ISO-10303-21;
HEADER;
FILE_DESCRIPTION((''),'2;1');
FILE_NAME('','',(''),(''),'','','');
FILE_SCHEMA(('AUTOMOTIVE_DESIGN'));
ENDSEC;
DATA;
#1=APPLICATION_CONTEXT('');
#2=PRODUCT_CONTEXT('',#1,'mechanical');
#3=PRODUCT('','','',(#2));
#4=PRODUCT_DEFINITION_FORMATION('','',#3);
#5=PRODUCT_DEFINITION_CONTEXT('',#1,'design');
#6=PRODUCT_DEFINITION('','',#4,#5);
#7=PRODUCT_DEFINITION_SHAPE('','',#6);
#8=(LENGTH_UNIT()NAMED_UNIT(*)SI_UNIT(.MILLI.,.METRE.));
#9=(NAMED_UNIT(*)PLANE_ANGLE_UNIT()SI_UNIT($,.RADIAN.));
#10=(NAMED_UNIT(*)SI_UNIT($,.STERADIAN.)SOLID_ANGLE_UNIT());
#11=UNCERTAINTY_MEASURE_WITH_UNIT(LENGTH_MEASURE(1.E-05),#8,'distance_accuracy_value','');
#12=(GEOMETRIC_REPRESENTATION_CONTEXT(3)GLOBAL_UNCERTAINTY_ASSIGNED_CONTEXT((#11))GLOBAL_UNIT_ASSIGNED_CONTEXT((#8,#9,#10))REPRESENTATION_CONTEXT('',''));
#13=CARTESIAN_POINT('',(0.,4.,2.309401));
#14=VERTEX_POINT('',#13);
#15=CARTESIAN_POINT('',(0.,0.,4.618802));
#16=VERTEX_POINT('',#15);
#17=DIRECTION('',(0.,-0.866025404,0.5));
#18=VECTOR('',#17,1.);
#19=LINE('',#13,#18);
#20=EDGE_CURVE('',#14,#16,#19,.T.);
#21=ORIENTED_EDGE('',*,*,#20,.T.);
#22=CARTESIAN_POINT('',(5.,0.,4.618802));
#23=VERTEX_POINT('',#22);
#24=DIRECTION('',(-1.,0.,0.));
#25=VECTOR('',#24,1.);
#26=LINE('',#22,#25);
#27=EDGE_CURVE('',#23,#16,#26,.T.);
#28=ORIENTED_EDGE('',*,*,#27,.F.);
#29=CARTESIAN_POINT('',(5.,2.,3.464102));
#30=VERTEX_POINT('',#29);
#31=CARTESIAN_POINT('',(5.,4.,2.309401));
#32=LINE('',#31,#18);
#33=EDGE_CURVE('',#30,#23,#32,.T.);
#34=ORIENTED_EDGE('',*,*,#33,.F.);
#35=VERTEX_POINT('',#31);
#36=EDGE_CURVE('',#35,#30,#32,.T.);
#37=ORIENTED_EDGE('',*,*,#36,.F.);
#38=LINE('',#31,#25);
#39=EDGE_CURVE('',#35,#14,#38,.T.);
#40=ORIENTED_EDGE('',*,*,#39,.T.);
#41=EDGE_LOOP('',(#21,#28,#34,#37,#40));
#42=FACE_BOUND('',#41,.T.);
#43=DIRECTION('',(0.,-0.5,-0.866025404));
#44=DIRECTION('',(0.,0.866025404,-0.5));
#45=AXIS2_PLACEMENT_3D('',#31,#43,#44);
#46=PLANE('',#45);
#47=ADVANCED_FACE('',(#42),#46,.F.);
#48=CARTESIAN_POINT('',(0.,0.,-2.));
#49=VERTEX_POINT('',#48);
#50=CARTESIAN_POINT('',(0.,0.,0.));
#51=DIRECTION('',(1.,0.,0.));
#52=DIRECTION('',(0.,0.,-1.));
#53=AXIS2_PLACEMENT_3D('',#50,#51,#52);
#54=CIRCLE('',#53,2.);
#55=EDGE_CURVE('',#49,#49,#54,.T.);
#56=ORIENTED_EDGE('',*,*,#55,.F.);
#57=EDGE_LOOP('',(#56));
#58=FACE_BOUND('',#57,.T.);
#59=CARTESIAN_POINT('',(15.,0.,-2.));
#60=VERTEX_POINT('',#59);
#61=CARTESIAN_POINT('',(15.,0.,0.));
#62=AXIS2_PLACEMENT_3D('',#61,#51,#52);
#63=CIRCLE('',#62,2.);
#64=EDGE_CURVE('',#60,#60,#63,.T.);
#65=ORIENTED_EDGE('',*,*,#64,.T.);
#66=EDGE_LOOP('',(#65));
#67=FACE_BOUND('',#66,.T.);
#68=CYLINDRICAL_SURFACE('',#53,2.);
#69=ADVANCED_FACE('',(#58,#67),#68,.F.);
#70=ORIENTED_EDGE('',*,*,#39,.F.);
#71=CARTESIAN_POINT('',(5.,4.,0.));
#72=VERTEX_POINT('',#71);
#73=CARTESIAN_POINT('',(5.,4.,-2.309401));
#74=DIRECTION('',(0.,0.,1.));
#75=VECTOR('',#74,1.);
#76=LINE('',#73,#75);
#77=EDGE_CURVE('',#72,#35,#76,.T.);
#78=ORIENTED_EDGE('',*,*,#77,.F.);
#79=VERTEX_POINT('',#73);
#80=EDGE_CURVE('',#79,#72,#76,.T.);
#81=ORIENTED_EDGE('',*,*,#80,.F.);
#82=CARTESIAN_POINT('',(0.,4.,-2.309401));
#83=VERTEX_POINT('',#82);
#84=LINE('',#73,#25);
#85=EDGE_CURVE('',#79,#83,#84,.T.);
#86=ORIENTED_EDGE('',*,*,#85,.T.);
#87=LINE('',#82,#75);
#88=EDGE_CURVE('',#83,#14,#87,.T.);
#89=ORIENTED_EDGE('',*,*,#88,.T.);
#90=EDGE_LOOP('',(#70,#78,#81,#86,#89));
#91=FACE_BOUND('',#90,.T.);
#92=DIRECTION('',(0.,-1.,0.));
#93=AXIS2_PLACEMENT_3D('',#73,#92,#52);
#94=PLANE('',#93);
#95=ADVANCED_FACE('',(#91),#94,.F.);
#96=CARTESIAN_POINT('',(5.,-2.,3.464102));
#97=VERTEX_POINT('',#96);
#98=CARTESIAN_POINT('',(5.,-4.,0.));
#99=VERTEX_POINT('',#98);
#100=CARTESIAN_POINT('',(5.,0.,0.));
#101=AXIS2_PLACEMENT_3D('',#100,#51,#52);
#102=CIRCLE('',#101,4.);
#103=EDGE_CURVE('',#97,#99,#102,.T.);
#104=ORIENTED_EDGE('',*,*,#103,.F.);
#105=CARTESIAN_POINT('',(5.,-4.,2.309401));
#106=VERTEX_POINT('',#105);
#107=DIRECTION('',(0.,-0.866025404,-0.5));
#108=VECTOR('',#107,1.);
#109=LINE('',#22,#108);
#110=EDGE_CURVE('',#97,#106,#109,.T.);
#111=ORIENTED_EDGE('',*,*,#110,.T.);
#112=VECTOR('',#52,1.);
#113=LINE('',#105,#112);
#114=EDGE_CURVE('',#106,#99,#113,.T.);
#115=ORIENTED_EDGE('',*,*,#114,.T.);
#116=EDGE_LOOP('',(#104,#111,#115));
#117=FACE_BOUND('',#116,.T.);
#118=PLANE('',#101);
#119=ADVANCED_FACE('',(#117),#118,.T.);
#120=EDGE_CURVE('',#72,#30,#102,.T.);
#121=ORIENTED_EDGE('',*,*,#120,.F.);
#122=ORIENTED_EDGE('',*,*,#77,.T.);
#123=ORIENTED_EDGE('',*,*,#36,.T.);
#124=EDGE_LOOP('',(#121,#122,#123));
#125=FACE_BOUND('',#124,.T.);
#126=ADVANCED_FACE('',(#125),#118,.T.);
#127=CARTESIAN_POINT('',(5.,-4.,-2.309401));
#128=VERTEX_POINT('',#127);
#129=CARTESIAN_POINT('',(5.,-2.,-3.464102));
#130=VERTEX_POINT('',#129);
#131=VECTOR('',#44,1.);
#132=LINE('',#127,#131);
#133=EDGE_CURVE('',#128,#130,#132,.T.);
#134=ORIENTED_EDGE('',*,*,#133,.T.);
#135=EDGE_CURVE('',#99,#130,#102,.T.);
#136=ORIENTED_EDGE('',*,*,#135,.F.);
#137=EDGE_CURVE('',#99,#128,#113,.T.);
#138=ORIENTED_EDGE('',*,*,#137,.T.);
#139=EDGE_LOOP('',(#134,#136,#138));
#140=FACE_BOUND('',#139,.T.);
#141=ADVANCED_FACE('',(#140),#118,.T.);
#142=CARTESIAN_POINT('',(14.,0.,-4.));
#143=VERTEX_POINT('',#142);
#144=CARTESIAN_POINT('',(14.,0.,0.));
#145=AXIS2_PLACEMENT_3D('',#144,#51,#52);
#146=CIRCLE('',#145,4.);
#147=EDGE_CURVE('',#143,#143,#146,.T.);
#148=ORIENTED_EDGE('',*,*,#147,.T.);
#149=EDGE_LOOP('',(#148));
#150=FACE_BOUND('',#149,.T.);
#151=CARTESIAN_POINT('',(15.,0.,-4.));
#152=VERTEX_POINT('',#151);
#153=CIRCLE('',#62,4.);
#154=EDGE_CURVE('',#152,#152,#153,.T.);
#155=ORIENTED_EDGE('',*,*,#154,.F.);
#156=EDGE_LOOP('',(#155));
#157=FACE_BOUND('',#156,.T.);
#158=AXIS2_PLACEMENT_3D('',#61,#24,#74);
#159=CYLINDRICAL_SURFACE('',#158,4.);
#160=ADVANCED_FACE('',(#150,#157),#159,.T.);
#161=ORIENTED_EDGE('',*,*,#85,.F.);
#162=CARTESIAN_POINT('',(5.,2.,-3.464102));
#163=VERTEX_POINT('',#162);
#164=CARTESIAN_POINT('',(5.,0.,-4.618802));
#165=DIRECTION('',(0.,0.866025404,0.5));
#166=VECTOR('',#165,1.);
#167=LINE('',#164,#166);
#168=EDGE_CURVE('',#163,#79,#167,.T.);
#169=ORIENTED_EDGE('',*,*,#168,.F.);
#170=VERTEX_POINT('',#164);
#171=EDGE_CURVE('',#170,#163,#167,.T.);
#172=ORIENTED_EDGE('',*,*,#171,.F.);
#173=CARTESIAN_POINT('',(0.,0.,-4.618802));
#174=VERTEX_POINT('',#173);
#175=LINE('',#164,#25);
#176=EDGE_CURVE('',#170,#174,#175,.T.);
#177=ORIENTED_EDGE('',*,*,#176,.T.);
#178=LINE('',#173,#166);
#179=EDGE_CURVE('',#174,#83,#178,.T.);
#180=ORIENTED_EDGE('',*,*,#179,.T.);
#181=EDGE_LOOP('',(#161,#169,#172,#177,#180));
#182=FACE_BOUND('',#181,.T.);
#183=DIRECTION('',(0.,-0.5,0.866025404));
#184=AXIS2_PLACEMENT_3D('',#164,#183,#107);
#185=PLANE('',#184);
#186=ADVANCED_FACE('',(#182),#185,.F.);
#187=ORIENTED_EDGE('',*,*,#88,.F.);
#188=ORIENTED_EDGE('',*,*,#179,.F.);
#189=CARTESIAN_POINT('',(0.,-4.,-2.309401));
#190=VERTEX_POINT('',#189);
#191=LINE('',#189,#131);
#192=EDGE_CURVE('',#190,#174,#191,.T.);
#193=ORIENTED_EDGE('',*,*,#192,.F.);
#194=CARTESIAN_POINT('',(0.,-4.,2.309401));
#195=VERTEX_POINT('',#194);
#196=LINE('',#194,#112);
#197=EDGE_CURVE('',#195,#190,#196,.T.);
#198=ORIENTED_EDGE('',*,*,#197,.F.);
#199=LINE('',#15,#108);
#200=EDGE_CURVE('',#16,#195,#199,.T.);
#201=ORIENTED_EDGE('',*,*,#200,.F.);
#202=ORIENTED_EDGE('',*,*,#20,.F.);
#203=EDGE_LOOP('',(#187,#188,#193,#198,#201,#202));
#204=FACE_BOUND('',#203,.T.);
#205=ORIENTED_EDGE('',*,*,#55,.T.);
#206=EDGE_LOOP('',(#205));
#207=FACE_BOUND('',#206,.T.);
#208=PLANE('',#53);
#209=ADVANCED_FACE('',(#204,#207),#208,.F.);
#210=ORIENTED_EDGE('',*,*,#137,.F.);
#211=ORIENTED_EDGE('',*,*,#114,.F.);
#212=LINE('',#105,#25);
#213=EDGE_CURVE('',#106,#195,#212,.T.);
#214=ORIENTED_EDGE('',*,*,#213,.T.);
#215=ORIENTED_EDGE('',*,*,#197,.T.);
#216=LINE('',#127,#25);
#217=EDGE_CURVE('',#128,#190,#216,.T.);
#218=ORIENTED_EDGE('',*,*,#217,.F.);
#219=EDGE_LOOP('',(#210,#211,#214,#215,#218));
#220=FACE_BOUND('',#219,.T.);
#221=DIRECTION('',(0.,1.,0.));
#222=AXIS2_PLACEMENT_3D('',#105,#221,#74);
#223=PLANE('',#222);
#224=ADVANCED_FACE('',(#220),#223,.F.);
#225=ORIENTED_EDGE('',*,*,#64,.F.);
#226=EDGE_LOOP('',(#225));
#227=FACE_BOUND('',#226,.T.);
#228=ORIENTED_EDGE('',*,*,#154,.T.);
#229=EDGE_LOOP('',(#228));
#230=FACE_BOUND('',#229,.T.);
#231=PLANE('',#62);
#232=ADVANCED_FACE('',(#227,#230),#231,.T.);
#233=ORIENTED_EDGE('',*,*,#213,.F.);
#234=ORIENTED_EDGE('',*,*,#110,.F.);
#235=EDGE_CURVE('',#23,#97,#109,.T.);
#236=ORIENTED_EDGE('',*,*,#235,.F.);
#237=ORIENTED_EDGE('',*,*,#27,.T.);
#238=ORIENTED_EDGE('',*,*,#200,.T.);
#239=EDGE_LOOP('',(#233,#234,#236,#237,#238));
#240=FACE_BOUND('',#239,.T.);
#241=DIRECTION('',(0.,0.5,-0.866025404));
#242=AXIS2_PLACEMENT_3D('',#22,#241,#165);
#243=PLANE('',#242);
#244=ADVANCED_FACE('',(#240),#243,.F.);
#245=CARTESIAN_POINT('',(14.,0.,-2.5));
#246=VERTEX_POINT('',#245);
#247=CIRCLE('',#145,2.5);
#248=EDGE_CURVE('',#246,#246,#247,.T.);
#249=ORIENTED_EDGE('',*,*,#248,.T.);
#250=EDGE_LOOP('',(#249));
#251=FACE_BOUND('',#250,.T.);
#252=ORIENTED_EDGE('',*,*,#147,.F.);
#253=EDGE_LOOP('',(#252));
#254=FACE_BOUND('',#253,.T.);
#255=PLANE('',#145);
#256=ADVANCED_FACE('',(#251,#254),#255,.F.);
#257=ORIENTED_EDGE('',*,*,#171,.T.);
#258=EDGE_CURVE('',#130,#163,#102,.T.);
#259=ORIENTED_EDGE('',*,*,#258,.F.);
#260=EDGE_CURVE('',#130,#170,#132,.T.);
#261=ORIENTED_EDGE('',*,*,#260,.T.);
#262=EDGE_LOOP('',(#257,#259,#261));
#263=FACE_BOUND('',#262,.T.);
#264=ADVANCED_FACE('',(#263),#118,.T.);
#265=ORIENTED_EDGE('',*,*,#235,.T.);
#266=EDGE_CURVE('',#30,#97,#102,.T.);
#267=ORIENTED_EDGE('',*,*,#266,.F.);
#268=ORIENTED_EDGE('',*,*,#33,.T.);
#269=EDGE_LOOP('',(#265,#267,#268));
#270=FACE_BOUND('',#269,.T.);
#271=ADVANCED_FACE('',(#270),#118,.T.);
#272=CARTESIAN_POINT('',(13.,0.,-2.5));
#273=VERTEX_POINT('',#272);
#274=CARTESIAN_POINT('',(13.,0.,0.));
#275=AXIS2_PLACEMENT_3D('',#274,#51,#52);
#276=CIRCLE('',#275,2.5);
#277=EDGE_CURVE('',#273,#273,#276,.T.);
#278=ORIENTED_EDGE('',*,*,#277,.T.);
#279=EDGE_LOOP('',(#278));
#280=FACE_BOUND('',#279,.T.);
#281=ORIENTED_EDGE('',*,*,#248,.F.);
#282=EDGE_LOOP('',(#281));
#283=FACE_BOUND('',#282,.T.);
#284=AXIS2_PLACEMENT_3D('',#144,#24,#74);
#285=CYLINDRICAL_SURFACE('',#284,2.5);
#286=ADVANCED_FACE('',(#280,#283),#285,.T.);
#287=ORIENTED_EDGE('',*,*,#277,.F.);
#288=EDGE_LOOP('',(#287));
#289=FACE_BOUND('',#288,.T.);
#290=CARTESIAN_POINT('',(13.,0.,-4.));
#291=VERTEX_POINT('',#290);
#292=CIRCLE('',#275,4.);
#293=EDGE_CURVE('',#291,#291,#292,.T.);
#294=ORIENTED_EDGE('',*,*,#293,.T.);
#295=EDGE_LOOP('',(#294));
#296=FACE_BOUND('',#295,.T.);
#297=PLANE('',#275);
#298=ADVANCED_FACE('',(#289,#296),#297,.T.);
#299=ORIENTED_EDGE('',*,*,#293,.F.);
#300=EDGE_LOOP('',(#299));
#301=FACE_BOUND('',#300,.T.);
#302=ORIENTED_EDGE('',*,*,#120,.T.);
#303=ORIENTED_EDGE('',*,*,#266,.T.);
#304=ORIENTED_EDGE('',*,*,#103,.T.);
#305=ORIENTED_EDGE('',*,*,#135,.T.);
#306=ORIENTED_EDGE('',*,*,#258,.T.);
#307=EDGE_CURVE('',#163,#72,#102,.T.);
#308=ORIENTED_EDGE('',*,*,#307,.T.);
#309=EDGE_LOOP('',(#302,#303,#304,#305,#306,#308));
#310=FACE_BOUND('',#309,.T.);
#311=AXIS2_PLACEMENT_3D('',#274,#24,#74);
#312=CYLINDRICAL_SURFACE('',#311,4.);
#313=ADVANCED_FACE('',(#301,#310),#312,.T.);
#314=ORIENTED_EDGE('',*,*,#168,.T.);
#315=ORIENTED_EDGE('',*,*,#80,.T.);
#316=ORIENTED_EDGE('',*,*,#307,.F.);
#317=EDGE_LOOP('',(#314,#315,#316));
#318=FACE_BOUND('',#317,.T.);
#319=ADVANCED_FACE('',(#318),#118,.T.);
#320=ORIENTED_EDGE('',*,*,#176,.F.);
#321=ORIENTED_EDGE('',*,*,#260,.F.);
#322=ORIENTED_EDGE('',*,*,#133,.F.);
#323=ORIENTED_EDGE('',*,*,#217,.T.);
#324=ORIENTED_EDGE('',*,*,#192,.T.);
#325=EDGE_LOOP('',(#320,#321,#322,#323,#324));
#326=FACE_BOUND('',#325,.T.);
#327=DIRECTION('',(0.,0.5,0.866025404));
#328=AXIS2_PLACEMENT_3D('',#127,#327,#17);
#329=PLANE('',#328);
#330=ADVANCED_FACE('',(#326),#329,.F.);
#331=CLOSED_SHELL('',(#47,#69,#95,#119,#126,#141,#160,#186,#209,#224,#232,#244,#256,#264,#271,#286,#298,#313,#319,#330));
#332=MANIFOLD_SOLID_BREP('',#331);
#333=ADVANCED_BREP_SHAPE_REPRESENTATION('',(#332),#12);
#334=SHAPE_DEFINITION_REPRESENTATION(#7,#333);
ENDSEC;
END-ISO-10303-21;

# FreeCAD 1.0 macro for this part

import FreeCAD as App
import Part
import Sketcher

V = App.Vector
Q = App.Units.Quantity


def add_polygon(sketch, points):
    """Adds a closed chain of lines whose ends are joined by coincident constraints."""
    first, n = sketch.GeometryCount, len(points)
    for a, b in zip(points, points[1:] + points[:1]):
        sketch.addGeometry(Part.LineSegment(App.Vector(*a, 0), App.Vector(*b, 0)), False)
    for i in range(n):
        sketch.addConstraint(Sketcher.Constraint("Coincident", first + i, 2, first + (i + 1) % n, 1))

doc = App.newDocument("Part")
body = doc.addObject("PartDesign::Body", "Body")

sketch1 = doc.addObject("Sketcher::SketchObject", "Sketch")
body.addObject(sketch1)
sketch1.AttachmentSupport = (doc.YZ_Plane, [""])
sketch1.MapMode = "FlatFace"
add_polygon(sketch1, [(4, 2.309401), (0, 4.618802), (-4, 2.309401), (-4, -2.309401), (0, -4.618802), (4, -2.309401)])
sketch1.addConstraint(Sketcher.Constraint("Vertical", 2))
sketch1.addConstraint(Sketcher.Constraint("Vertical", 5))
sketch1.addConstraint(Sketcher.Constraint("Symmetric", 0, 2, 3, 2, -1, 1))
sketch1.addConstraint(Sketcher.Constraint("Symmetric", 1, 2, 4, 2, -1, 1))
sketch1.addConstraint(Sketcher.Constraint("PointOnObject", 0, 2, -2))
sketch1.addConstraint(Sketcher.Constraint("Parallel", 0, 3))
sketch1.addConstraint(Sketcher.Constraint("Horizontal", 2, 2, 4, 2))
sketch1.addConstraint(Sketcher.Constraint("Angle", 0, Q("150 deg")))
sketch1.addConstraint(Sketcher.Constraint("DistanceX", 1, 2, -1, 1, Q("4 mm")))
sketch1.addConstraint(Sketcher.Constraint("DistanceY", -1, 1, 1, 2, Q("2.309401 mm")))
pad1 = doc.addObject("PartDesign::Pad", "Pad")
body.addObject(pad1)
pad1.Profile = sketch1
pad1.Length = 5

sketch2 = doc.addObject("Sketcher::SketchObject", "Sketch001")
body.addObject(sketch2)
sketch2.AttachmentSupport = (doc.YZ_Plane, [""])
sketch2.MapMode = "FlatFace"
sketch2.AttachmentOffset = App.Placement(V(0, 0, 5), App.Rotation())
sketch2.addGeometry(Part.Circle(V(0, 0, 0), V(0, 0, 1), 4), False)
sketch2.addConstraint(Sketcher.Constraint("Coincident", 0, 3, -1, 1))
sketch2.addConstraint(Sketcher.Constraint("Diameter", 0, Q("8 mm")))
pad2 = doc.addObject("PartDesign::Pad", "Pad001")
body.addObject(pad2)
pad2.Profile = sketch2
pad2.Length = 8

sketch3 = doc.addObject("Sketcher::SketchObject", "Sketch002")
body.addObject(sketch3)
sketch3.AttachmentSupport = (doc.YZ_Plane, [""])
sketch3.MapMode = "FlatFace"
sketch3.AttachmentOffset = App.Placement(V(0, 0, 13), App.Rotation())
sketch3.addGeometry(Part.Circle(V(0, 0, 0), V(0, 0, 1), 2.5), False)
sketch3.addConstraint(Sketcher.Constraint("Coincident", 0, 3, -1, 1))
sketch3.addConstraint(Sketcher.Constraint("Diameter", 0, Q("5 mm")))
pad3 = doc.addObject("PartDesign::Pad", "Pad002")
body.addObject(pad3)
pad3.Profile = sketch3
pad3.Length = 1

sketch4 = doc.addObject("Sketcher::SketchObject", "Sketch003")
body.addObject(sketch4)
sketch4.AttachmentSupport = (doc.YZ_Plane, [""])
sketch4.MapMode = "FlatFace"
sketch4.AttachmentOffset = App.Placement(V(0, 0, 14), App.Rotation())
sketch4.addGeometry(Part.Circle(V(0, 0, 0), V(0, 0, 1), 4), False)
sketch4.addConstraint(Sketcher.Constraint("Coincident", 0, 3, -1, 1))
sketch4.addConstraint(Sketcher.Constraint("Diameter", 0, Q("8 mm")))
pad4 = doc.addObject("PartDesign::Pad", "Pad003")
body.addObject(pad4)
pad4.Profile = sketch4
pad4.Length = 1

sketch5 = doc.addObject("Sketcher::SketchObject", "Sketch004")
body.addObject(sketch5)
sketch5.AttachmentSupport = (doc.YZ_Plane, [""])
sketch5.MapMode = "FlatFace"
sketch5.AttachmentOffset = App.Placement(V(0, 0, 15), App.Rotation())
sketch5.addGeometry(Part.Circle(V(0, 0, 0), V(0, 0, 1), 2), False)
sketch5.addConstraint(Sketcher.Constraint("Coincident", 0, 3, -1, 1))
sketch5.addConstraint(Sketcher.Constraint("Diameter", 0, Q("4 mm")))
pocket1 = doc.addObject("PartDesign::Pocket", "Pocket")
body.addObject(pocket1)
pocket1.Profile = sketch5
pocket1.Type = "ThroughAll"

doc.recompute()
